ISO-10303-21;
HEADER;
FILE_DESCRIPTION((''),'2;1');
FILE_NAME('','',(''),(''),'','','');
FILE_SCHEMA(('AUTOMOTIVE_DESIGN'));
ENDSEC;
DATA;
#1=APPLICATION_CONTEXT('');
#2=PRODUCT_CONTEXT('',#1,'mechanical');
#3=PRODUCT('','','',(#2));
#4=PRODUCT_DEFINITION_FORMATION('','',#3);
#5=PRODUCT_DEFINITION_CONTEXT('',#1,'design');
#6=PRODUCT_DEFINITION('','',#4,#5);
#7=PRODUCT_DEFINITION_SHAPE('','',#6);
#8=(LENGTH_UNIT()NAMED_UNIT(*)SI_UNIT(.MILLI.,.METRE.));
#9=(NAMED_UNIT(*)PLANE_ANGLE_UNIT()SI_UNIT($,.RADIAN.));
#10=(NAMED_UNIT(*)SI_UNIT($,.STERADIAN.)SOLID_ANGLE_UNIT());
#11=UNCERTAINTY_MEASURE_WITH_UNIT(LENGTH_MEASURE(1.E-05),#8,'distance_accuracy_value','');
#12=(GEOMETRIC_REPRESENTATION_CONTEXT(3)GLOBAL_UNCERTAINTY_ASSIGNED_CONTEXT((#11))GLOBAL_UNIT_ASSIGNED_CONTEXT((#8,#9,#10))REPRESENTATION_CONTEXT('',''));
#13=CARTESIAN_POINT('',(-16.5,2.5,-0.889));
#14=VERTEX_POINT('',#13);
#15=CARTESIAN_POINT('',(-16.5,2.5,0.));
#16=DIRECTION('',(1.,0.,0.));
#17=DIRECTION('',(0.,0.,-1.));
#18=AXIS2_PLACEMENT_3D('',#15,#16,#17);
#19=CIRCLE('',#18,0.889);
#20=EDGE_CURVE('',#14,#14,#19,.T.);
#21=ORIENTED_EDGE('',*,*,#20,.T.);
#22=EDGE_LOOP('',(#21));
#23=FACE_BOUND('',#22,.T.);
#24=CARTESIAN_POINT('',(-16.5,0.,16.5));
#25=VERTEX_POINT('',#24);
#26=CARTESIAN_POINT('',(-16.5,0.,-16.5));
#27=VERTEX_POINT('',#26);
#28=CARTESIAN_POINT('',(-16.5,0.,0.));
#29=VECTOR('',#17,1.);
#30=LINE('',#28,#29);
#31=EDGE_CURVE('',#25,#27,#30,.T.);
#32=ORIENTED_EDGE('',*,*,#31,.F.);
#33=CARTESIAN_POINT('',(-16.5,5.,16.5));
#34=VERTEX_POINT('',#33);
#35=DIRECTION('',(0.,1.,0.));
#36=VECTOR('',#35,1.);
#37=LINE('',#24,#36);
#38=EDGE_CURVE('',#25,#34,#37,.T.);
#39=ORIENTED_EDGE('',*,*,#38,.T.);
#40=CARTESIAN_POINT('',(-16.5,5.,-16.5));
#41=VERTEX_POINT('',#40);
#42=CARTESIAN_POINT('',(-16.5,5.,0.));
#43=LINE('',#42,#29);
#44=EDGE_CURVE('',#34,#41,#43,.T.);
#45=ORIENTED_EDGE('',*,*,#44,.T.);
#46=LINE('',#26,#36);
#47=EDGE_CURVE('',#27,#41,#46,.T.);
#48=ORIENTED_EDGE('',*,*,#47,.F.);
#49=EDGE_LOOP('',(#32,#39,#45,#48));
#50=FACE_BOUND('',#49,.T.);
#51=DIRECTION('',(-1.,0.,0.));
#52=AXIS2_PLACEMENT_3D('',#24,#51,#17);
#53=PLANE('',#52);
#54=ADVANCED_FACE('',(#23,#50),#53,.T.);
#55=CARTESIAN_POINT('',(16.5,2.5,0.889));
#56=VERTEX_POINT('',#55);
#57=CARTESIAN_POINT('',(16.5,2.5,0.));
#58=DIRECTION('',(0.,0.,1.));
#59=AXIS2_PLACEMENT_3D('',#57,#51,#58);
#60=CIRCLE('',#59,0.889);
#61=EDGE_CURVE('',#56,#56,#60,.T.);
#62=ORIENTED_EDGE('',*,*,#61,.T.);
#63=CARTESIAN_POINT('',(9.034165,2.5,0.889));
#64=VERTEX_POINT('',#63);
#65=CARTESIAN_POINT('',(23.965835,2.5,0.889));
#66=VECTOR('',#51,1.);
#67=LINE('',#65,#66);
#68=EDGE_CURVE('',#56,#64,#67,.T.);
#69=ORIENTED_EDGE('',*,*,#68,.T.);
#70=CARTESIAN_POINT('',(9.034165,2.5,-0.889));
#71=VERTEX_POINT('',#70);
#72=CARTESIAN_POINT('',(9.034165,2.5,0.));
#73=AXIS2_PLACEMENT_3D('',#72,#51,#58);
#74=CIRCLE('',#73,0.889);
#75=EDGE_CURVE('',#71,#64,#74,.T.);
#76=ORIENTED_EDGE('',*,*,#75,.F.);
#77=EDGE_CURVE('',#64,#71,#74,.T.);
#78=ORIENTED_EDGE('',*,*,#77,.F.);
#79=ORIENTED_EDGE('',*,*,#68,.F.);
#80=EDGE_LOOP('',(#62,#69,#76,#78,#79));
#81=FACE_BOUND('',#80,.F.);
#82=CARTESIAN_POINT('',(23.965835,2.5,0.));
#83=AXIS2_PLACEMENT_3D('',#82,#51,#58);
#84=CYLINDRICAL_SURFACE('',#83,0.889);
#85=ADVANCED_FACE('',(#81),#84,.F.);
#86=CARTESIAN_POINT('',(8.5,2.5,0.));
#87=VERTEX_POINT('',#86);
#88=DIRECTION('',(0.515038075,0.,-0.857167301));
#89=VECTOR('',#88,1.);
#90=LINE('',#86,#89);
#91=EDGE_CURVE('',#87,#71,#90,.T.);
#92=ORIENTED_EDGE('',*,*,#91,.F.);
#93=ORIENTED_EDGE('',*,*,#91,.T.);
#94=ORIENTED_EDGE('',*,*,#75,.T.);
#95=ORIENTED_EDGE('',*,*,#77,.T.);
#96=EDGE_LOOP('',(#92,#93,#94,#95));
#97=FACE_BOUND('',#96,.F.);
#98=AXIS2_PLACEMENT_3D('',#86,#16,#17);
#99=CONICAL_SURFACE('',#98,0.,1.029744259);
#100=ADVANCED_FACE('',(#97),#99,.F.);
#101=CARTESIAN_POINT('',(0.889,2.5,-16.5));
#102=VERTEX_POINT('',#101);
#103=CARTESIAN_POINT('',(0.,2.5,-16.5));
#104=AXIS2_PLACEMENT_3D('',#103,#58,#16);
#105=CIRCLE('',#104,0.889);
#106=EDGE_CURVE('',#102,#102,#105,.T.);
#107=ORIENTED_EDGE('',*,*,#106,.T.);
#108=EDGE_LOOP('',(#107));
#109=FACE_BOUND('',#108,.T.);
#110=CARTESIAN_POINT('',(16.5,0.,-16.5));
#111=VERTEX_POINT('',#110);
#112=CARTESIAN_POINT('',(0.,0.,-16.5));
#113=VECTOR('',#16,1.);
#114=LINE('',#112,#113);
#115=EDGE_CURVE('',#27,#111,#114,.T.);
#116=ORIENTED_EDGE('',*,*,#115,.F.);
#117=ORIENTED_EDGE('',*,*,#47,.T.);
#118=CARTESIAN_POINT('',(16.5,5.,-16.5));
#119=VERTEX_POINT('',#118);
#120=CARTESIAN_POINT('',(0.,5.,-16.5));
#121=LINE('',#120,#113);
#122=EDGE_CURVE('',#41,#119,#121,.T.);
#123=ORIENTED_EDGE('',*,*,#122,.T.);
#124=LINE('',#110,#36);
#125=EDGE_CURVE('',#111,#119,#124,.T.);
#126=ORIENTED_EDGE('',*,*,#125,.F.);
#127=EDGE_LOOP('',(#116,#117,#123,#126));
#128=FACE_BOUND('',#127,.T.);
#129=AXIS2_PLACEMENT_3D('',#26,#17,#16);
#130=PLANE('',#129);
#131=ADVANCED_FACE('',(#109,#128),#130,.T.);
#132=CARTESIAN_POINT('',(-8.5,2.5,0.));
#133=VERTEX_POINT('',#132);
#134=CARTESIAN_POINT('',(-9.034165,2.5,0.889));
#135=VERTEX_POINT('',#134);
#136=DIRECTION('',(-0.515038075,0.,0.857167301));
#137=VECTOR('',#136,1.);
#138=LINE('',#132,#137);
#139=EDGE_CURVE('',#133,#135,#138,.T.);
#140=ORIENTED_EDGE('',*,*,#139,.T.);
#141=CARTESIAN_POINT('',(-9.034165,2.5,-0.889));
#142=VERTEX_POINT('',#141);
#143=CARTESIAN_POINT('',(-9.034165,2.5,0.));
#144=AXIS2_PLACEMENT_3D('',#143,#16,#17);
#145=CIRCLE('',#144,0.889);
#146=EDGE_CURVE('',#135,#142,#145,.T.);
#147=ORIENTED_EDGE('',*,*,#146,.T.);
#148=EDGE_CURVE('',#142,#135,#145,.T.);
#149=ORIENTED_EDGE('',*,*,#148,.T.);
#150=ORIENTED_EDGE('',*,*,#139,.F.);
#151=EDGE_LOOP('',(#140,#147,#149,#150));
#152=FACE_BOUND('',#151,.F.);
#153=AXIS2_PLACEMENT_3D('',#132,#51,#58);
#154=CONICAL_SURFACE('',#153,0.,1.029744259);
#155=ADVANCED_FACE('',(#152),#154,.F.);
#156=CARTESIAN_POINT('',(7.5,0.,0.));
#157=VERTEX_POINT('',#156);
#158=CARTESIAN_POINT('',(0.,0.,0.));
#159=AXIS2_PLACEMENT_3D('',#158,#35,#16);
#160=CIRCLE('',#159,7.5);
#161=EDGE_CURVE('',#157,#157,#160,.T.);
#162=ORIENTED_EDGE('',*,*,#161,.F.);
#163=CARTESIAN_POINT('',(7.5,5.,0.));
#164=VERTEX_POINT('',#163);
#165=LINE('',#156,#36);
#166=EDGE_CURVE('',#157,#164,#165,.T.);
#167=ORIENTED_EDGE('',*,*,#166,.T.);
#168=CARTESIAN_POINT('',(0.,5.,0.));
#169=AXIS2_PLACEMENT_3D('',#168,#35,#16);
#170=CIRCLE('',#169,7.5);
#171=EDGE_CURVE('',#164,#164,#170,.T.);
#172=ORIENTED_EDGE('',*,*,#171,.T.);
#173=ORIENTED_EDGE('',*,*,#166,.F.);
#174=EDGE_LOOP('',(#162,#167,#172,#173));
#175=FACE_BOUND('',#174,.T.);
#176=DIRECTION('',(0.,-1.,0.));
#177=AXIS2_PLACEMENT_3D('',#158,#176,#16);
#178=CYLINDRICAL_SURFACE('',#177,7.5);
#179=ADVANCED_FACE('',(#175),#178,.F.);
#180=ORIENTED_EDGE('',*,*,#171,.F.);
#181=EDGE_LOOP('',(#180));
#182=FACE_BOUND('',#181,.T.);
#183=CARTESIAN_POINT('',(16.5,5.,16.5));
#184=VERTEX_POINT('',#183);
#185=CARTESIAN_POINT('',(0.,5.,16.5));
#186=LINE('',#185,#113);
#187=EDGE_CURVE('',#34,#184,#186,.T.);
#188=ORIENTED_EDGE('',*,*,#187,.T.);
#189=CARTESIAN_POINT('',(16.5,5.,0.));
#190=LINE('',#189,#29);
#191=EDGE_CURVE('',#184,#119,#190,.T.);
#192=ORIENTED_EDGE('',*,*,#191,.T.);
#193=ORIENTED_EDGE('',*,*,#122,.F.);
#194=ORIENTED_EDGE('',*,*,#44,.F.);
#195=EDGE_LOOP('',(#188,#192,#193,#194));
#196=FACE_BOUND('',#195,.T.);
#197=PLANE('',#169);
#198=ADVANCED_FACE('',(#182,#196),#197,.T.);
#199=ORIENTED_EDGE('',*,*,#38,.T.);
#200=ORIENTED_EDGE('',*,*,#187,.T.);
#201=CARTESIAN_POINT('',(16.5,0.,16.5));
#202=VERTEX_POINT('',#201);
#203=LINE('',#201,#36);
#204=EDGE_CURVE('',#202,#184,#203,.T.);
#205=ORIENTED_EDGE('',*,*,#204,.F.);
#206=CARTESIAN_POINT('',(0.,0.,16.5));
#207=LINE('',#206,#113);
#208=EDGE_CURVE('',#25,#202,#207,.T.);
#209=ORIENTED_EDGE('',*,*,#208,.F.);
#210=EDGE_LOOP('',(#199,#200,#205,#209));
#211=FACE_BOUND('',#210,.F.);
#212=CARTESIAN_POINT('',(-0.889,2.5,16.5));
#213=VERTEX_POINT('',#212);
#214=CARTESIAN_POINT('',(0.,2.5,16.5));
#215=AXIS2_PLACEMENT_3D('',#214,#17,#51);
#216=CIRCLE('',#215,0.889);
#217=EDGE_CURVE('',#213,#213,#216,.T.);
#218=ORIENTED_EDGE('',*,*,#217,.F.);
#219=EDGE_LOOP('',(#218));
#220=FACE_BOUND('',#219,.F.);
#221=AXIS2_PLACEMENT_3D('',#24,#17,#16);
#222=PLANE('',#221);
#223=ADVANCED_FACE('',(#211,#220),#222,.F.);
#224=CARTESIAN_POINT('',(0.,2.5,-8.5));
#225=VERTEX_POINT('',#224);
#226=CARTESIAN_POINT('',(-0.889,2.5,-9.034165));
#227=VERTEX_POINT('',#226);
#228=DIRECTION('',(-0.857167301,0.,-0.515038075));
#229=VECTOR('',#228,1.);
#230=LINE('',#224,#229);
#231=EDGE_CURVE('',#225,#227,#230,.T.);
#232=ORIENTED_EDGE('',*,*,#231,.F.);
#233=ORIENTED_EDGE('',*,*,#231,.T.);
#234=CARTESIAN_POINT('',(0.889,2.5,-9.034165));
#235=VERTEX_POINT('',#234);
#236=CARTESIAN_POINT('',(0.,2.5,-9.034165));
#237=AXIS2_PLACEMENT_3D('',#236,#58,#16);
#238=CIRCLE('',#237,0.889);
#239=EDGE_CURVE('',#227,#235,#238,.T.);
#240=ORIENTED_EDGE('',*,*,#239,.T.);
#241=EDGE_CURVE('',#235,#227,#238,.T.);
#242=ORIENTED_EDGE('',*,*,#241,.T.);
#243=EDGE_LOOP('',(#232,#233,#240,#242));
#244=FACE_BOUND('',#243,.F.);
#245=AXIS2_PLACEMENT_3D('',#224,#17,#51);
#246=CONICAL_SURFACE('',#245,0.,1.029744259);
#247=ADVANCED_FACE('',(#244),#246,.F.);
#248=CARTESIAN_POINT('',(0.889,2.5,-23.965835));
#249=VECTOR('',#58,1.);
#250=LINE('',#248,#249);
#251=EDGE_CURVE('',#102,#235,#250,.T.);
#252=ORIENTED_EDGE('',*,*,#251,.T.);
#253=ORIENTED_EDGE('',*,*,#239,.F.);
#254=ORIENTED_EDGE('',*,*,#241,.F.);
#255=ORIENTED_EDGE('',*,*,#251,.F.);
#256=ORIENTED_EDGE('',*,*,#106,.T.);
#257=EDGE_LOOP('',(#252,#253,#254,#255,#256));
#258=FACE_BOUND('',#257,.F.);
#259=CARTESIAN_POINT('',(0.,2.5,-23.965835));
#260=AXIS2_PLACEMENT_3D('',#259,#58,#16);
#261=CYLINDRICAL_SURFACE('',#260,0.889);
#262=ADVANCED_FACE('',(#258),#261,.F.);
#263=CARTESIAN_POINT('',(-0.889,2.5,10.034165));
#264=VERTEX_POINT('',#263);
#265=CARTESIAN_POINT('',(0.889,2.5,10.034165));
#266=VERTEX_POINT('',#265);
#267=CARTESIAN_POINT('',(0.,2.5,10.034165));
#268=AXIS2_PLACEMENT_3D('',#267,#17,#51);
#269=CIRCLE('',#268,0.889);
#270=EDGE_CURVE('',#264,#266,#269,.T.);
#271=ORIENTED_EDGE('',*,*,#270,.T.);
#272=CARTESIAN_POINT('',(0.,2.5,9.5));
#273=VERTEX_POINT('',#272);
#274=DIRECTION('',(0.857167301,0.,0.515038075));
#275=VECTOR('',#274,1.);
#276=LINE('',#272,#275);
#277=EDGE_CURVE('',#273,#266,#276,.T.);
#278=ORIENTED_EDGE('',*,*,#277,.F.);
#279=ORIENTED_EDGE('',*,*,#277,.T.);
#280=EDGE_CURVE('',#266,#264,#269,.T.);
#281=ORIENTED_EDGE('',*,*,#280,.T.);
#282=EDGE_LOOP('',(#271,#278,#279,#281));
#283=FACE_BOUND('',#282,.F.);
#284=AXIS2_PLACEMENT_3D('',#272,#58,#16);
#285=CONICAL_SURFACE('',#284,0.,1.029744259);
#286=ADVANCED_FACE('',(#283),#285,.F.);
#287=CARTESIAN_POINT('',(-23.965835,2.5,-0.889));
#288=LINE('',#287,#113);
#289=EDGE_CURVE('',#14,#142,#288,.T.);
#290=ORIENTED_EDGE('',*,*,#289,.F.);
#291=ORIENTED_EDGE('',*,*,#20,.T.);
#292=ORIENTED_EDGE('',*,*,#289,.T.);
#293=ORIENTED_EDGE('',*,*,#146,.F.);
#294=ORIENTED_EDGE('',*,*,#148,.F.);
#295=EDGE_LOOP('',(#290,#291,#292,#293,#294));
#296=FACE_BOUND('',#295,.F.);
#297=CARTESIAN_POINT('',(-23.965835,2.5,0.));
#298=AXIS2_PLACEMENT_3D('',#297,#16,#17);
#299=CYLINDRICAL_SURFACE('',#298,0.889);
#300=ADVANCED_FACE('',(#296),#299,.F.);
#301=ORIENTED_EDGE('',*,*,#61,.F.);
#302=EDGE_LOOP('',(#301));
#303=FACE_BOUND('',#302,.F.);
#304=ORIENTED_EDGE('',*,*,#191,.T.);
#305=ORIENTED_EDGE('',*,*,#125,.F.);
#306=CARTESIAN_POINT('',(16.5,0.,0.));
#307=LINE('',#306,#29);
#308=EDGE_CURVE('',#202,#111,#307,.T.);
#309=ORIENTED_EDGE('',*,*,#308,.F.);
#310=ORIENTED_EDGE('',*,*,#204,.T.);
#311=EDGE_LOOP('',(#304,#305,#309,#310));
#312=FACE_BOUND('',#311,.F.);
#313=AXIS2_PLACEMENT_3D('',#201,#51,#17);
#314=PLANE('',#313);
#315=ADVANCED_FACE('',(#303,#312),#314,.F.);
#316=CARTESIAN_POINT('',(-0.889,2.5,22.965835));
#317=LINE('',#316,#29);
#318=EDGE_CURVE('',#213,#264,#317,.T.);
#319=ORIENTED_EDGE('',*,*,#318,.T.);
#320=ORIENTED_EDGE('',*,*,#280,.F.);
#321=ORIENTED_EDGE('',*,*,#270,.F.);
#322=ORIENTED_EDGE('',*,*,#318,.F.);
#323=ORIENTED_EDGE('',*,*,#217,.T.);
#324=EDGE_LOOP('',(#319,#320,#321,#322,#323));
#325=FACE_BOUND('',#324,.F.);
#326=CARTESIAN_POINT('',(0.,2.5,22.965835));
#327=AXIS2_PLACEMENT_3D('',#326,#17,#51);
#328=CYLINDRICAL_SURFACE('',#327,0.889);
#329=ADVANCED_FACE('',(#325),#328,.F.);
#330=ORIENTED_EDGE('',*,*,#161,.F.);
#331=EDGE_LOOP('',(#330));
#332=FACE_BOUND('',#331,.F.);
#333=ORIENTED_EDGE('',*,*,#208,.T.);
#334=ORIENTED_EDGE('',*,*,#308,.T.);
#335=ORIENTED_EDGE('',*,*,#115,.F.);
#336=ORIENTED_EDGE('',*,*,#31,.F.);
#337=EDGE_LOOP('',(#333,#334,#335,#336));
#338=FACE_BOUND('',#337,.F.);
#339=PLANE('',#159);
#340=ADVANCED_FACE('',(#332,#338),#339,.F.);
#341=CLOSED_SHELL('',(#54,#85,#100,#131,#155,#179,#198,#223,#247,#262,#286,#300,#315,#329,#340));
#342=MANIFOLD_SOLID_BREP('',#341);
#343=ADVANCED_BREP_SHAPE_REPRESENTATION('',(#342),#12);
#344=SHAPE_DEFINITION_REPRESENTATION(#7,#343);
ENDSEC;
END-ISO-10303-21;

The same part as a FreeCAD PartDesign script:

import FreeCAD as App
import Part
import Sketcher
Q = App.Units.Quantity


def add_polygon(sketch, points):
    """Adds a closed chain of lines whose ends are joined by coincident constraints."""
    first, n = sketch.GeometryCount, len(points)
    for a, b in zip(points, points[1:] + points[:1]):
        sketch.addGeometry(Part.LineSegment(App.Vector(*a, 0), App.Vector(*b, 0)), False)
    for i in range(n):
        sketch.addConstraint(Sketcher.Constraint("Coincident", first + i, 2, first + (i + 1) % n, 1))

doc = App.newDocument("Part")
body = doc.addObject("PartDesign::Body", "Body")

# Sketch on XZ plane
sketch1 = body.newObject("Sketcher::SketchObject", "Sketch")
sketch1.AttachmentSupport = (doc.getObject("XZ_Plane"), [""])
sketch1.MapMode = "FlatFace"
add_polygon(sketch1, [(-16.5, -16.5), (-16.5, 16.5), (16.5, 16.5), (16.5, -16.5)])  # lines 0-3
sketch1.addGeometry(Part.Circle(App.Vector(0, 0, 0), App.Vector(0, 0, 1), 7.5), False)  # 4
sketch1.addConstraint(Sketcher.Constraint("Vertical", 0))
sketch1.addConstraint(Sketcher.Constraint("Horizontal", 1))
sketch1.addConstraint(Sketcher.Constraint("Vertical", 2))
sketch1.addConstraint(Sketcher.Constraint("Horizontal", 3))
sketch1.addConstraint(Sketcher.Constraint("Coincident", 4, 3, -1, 1))
sketch1.addConstraint(Sketcher.Constraint("Symmetric", 0, 2, 2, 2, -1, 1))
sketch1.addConstraint(Sketcher.Constraint("Equal", 3, 0))
sketch1.addConstraint(Sketcher.Constraint("Diameter", 4, Q("15 mm")))
sketch1.addConstraint(Sketcher.Constraint("DistanceX", 1, 1, 1, 2, Q("33 mm")))
pad1 = body.newObject("PartDesign::Pad", "Pad")
pad1.Profile = sketch1
pad1.Length = 5
pad1.Reversed = True

# Sketch on XY plane
sketch2 = body.newObject("Sketcher::SketchObject", "Sketch001")
sketch2.AttachmentSupport = (doc.getObject("XY_Plane"), [""])
sketch2.MapMode = "FlatFace"
sketch2.AttachmentOffset = App.Placement(App.Vector(0, 0, 16.5), App.Rotation())
sketch2.addGeometry(Part.Circle(App.Vector(0, 2.5, 0), App.Vector(0, 0, 1), 0.889), False)
sketch2.addConstraint(Sketcher.Constraint("PointOnObject", 0, 3, -2))
sketch2.addConstraint(Sketcher.Constraint("Diameter", 0, Q("1.778 mm")))
sketch2.addConstraint(Sketcher.Constraint("DistanceY", -1, 1, 0, 3, Q("2.5 mm")))
doc.recompute()
hole = body.newObject("PartDesign::Hole", "Hole")
hole.Profile = sketch2
hole.ThreadType = "None"
hole.Diameter = 1.778
hole.DepthType = "Dimension"
hole.Depth = 6.465835
hole.DrillPoint = "Angled"
hole.DrillPointAngle = 118

# Sketch on XY plane
sketch3 = body.newObject("Sketcher::SketchObject", "Sketch002")
sketch3.AttachmentSupport = (doc.getObject("XY_Plane"), [""])
sketch3.MapMode = "FlatFace"
sketch3.AttachmentOffset = App.Placement(App.Vector(0, 0, -16.5), App.Rotation())
sketch3.addGeometry(Part.Circle(App.Vector(0, 2.5, 0), App.Vector(0, 0, 1), 0.889), False)
sketch3.addConstraint(Sketcher.Constraint("PointOnObject", 0, 3, -2))
sketch3.addConstraint(Sketcher.Constraint("Diameter", 0, Q("1.778 mm")))
sketch3.addConstraint(Sketcher.Constraint("DistanceY", -1, 1, 0, 3, Q("2.5 mm")))
doc.recompute()
hole2 = body.newObject("PartDesign::Hole", "Hole001")
hole2.Profile = sketch3
hole2.ThreadType = "None"
hole2.Diameter = 1.778
hole2.DepthType = "Dimension"
hole2.Depth = 7.465835
hole2.DrillPoint = "Angled"
hole2.DrillPointAngle = 118
hole2.Reversed = True

# Sketch on YZ plane
sketch4 = body.newObject("Sketcher::SketchObject", "Sketch003")
sketch4.AttachmentSupport = (doc.getObject("YZ_Plane"), [""])
sketch4.MapMode = "FlatFace"
sketch4.AttachmentOffset = App.Placement(App.Vector(0, 0, 16.5), App.Rotation())
sketch4.addGeometry(Part.Circle(App.Vector(2.5, 0, 0), App.Vector(0, 0, 1), 0.889), False)
sketch4.addConstraint(Sketcher.Constraint("PointOnObject", 0, 3, -1))
sketch4.addConstraint(Sketcher.Constraint("Diameter", 0, Q("1.778 mm")))
sketch4.addConstraint(Sketcher.Constraint("DistanceX", -1, 1, 0, 3, Q("2.5 mm")))
doc.recompute()
hole3 = body.newObject("PartDesign::Hole", "Hole002")
hole3.Profile = sketch4
hole3.ThreadType = "None"
hole3.Diameter = 1.778
hole3.DepthType = "Dimension"
hole3.Depth = 7.465835
hole3.DrillPoint = "Angled"
hole3.DrillPointAngle = 118

# Sketch on YZ plane
sketch5 = body.newObject("Sketcher::SketchObject", "Sketch004")
sketch5.AttachmentSupport = (doc.getObject("YZ_Plane"), [""])
sketch5.MapMode = "FlatFace"
sketch5.AttachmentOffset = App.Placement(App.Vector(0, 0, -16.5), App.Rotation())
sketch5.addGeometry(Part.Circle(App.Vector(2.5, 0, 0), App.Vector(0, 0, 1), 0.889), False)
sketch5.addConstraint(Sketcher.Constraint("PointOnObject", 0, 3, -1))
sketch5.addConstraint(Sketcher.Constraint("Diameter", 0, Q("1.778 mm")))
sketch5.addConstraint(Sketcher.Constraint("DistanceX", -1, 1, 0, 3, Q("2.5 mm")))
doc.recompute()
hole4 = body.newObject("PartDesign::Hole", "Hole003")
hole4.Profile = sketch5
hole4.ThreadType = "None"
hole4.Diameter = 1.778
hole4.DepthType = "Dimension"
hole4.Depth = 7.465835
hole4.DrillPoint = "Angled"
hole4.DrillPointAngle = 118
hole4.Reversed = True

doc.recompute()
